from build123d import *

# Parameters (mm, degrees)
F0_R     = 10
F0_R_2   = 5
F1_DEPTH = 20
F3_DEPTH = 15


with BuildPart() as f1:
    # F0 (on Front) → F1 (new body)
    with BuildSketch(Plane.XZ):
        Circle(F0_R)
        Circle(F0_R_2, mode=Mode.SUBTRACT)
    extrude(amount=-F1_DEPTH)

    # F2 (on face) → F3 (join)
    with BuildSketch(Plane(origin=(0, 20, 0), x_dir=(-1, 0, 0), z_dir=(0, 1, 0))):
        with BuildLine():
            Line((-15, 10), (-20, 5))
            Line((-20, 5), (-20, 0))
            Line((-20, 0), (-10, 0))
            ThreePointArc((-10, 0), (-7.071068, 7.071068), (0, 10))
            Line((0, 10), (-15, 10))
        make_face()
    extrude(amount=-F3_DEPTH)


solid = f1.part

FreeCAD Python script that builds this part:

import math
import FreeCAD as App
import Part
import Sketcher

V = App.Vector
Q = App.Units.Quantity

doc = App.newDocument("Part")
params = doc.addObject("Spreadsheet::Sheet", "Params")
for row, (alias, value) in enumerate([
    ("sketch1_diameter", "20 mm"),
    ("sketch1_diameter2", "10 mm"),
    ("pad1_length", "20 mm"),
    ("sketch2_radius", "9.999999 mm"),
    ("sketch2_width", "10 mm"),
    ("sketch2_width2", "15 mm"),
    ("sketch2_height", "5 mm"),
    ("pad2_length", "15 mm"),
], start=1):
    params.set(f"A{row}", alias)
    params.set(f"B{row}", "=" + value)
    params.setAlias(f"B{row}", alias)

body = doc.addObject("PartDesign::Body", "Body")

# Sketch on XZ plane
sketch1 = body.newObject("Sketcher::SketchObject", "Sketch")
sketch1.AttachmentSupport = (doc.getObject("XZ_Plane"), [""])
sketch1.MapMode = "FlatFace"
sketch1.addGeometry([
    Part.Circle(V(0, 0, 0), V(0, 0, 1), 10),
    Part.Circle(V(0, 0, 0), V(0, 0, 1), 5),
], False)
sketch1.addConstraint([
    Sketcher.Constraint("Coincident", 0, 3, -1, 1),
    Sketcher.Constraint("Coincident", 1, 3, -1, 1),
    Sketcher.Constraint("Diameter", 0, Q("20 mm")),
    Sketcher.Constraint("Diameter", 1, Q("10 mm")),
])
sketch1.setExpression("Constraints[2]", "Params.sketch1_diameter")
sketch1.setExpression("Constraints[3]", "Params.sketch1_diameter2")
pad1 = body.newObject("PartDesign::Pad", "Pad")
pad1.Profile = sketch1
pad1.setExpression("Length", "Params.pad1_length")
pad1.Reversed = True

# Sketch on XZ plane
sketch2 = body.newObject("Sketcher::SketchObject", "Sketch001")
sketch2.AttachmentSupport = (doc.getObject("XZ_Plane"), [""])
sketch2.MapMode = "FlatFace"
sketch2.AttachmentOffset = App.Placement(V(0, 0, -20), App.Rotation())
sketch2.addGeometry([
    Part.LineSegment(V(15, 10, 0), V(20, 5, 0)),  # 0
    Part.LineSegment(V(20, 5, 0), V(20, 0, 0)),  # 1
    Part.LineSegment(V(20, 0, 0), V(10, 0, 0)),  # 2
    Part.ArcOfCircle(Part.Circle(V(0, 0, 0), V(0, 0, 1), 10), math.radians(0), math.radians(90)),  # 3
    Part.LineSegment(V(0, 10, 0), V(15, 10, 0)),  # 4
], False)
sketch2.addConstraint([
    Sketcher.Constraint("Coincident", 0, 2, 1, 1),
    Sketcher.Constraint("Coincident", 1, 2, 2, 1),
    Sketcher.Constraint("Coincident", 2, 2, 3, 1),
    Sketcher.Constraint("Tangent", 3, 2, 4, 1),
    Sketcher.Constraint("Coincident", 4, 2, 0, 1),
    Sketcher.Constraint("Vertical", 1),
    Sketcher.Constraint("Horizontal", 2),
    Sketcher.Constraint("Horizontal", 4),
    Sketcher.Constraint("Coincident", 3, 3, -1, 1),
    Sketcher.Constraint("PointOnObject", 1, 2, -1),
    Sketcher.Constraint("Radius", 3, Q("9.999999 mm")),
    Sketcher.Constraint("DistanceX", 2, 2, 2, 1, Q("10 mm")),
    Sketcher.Constraint("DistanceX", 4, 1, 4, 2, Q("15 mm")),
    Sketcher.Constraint("DistanceY", 1, 2, 1, 1, Q("5 mm")),
])
sketch2.setExpression("Constraints[10]", "Params.sketch2_radius")
sketch2.setExpression("Constraints[11]", "Params.sketch2_width")
sketch2.setExpression("Constraints[12]", "Params.sketch2_width2")
sketch2.setExpression("Constraints[13]", "Params.sketch2_height")
pad2 = body.newObject("PartDesign::Pad", "Pad001")
pad2.Profile = sketch2
pad2.setExpression("Length", "Params.pad2_length")

doc.recompute()
